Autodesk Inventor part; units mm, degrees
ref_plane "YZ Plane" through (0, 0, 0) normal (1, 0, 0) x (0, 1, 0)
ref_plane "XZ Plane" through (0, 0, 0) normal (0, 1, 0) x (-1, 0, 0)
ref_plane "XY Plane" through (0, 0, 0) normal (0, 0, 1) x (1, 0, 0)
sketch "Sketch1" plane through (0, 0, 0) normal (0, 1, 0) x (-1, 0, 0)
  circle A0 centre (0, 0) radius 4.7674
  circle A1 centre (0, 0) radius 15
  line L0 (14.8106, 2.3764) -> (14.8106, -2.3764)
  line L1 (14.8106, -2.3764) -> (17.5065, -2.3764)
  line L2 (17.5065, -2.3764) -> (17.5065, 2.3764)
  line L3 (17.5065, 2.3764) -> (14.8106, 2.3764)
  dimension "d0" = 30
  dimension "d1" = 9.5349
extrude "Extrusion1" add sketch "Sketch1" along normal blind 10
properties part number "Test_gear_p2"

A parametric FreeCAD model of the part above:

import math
import FreeCAD as App
import Part
import Sketcher

V = App.Vector

doc = App.newDocument("Part")
body = doc.addObject("PartDesign::Body", "Body")

# Sketch on XZ plane
sketch1 = body.newObject("Sketcher::SketchObject", "Sketch")
sketch1.AttachmentSupport = (doc.getObject("XZ_Plane"), [""])
sketch1.MapMode = "FlatFace"
sketch1.addGeometry(Part.LineSegment(V(-14.8, -2.4, 0), V(-17.5, -2.4, 0)), False)
sketch1.addGeometry(Part.LineSegment(V(-17.5, -2.4, 0), V(-17.5, 2.4, 0)), False)
sketch1.addGeometry(Part.LineSegment(V(-17.5, 2.4, 0), V(-14.8, 2.4, 0)), False)
sketch1.addGeometry(Part.ArcOfCircle(Part.Circle(V(0, 0, 0), V(0, 0, 1), 15), math.radians(-171), math.radians(171)), False)
sketch1.addGeometry(Part.Circle(V(0, 0, 0), V(0, 0, 1), 4.8), False)
sketch1.addConstraint(Sketcher.Constraint("Coincident", 0, 2, 1, 1))
sketch1.addConstraint(Sketcher.Constraint("Coincident", 1, 2, 2, 1))
sketch1.addConstraint(Sketcher.Constraint("Coincident", 2, 2, 3, 2))
sketch1.addConstraint(Sketcher.Constraint("Coincident", 3, 1, 0, 1))
sketch1.addConstraint(Sketcher.Constraint("Horizontal", 0))
sketch1.addConstraint(Sketcher.Constraint("Vertical", 1))
sketch1.addConstraint(Sketcher.Constraint("Horizontal", 2))
sketch1.addConstraint(Sketcher.Constraint("Coincident", 3, 3, -1, 1))
sketch1.addConstraint(Sketcher.Constraint("Coincident", 4, 3, -1, 1))
sketch1.addConstraint(Sketcher.Constraint("Vertical", 2, 2, 3, 1))
sketch1.addConstraint(Sketcher.Constraint("Radius", 3, 15.0))
sketch1.addConstraint(Sketcher.Constraint("Diameter", 4, 9.5348))
sketch1.addConstraint(Sketcher.Constraint("DistanceX", 0, 2, 0, 1, 2.696))
sketch1.addConstraint(Sketcher.Constraint("DistanceY", 1, 1, 1, 2, 4.7528))
pad1 = body.newObject("PartDesign::Pad", "Pad")
pad1.Profile = sketch1
pad1.Length = 10
pad1.Reversed = True

doc.recompute()
